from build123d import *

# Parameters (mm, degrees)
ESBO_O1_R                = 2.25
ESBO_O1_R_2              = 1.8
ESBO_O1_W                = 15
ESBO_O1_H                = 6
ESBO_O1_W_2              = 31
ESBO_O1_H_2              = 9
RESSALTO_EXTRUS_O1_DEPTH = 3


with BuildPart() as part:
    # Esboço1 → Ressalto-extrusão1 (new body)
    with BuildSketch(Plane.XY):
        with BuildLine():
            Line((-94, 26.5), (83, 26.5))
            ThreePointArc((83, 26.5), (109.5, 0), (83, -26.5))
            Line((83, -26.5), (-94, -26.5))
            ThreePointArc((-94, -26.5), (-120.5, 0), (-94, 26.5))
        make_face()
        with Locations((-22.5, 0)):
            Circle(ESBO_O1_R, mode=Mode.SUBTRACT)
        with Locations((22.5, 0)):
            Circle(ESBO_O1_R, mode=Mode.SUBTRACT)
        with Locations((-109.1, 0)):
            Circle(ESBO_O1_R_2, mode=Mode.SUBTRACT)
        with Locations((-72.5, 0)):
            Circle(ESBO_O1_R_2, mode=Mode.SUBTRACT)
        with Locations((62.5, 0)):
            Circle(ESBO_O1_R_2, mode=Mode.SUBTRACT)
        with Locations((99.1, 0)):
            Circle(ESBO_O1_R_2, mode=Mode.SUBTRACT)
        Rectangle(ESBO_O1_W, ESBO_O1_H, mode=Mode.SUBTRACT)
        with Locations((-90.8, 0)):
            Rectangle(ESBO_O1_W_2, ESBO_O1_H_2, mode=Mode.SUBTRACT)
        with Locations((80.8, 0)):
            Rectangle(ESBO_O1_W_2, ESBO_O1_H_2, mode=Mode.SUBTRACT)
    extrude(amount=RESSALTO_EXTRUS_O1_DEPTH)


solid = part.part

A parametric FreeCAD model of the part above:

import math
import FreeCAD as App
import Part
import Sketcher
Q = App.Units.Quantity


def add_polygon(sketch, points):
    """Adds a closed chain of lines whose ends are joined by coincident constraints."""
    first, n = sketch.GeometryCount, len(points)
    for a, b in zip(points, points[1:] + points[:1]):
        sketch.addGeometry(Part.LineSegment(App.Vector(*a, 0), App.Vector(*b, 0)), False)
    for i in range(n):
        sketch.addConstraint(Sketcher.Constraint("Coincident", first + i, 2, first + (i + 1) % n, 1))

doc = App.newDocument("Part")
params = doc.addObject("Spreadsheet::Sheet", "Params")
for row, (alias, value) in enumerate([
    ("sketch1_diameter", "3.6 mm"),
    ("sketch1_diameter2", "4.5 mm"),
    ("sketch1_radius", "26.5 mm"),
    ("sketch1_width", "177 mm"),
    ("sketch1_width2", "31 mm"),
    ("pad1_length", "3 mm"),
], start=1):
    params.set(f"A{row}", alias)
    params.set(f"B{row}", "=" + value)
    params.setAlias(f"B{row}", alias)

body = doc.addObject("PartDesign::Body", "Body")

sketch1 = body.newObject("Sketcher::SketchObject", "Sketch")
sketch1.AttachmentSupport = (doc.getObject("XY_Plane"), [""])
sketch1.MapMode = "FlatFace"
sketch1.addGeometry(Part.LineSegment(App.Vector(83, 26.5, 0), App.Vector(-94, 26.5, 0)), False)
sketch1.addGeometry(Part.ArcOfCircle(Part.Circle(App.Vector(-94, 0, 0), App.Vector(0, 0, 1), 26.5), math.radians(90), math.radians(270)), False)
sketch1.addGeometry(Part.LineSegment(App.Vector(-94, -26.5, 0), App.Vector(83, -26.5, 0)), False)
sketch1.addGeometry(Part.ArcOfCircle(Part.Circle(App.Vector(83, 0, 0), App.Vector(0, 0, 1), 26.5), math.radians(-90), math.radians(90)), False)
sketch1.addGeometry(Part.Circle(App.Vector(99.1, 0, 0), App.Vector(0, 0, 1), 1.8), False)
add_polygon(sketch1, [(65.3, -4.5), (65.3, 4.5), (96.3, 4.5), (96.3, -4.5)])
sketch1.addGeometry(Part.Circle(App.Vector(62.5, 0, 0), App.Vector(0, 0, 1), 1.8), False)
sketch1.addGeometry(Part.Circle(App.Vector(22.5, 0, 0), App.Vector(0, 0, 1), 2.2), False)
add_polygon(sketch1, [(-7.5, -3), (-7.5, 3), (7.5, 3), (7.5, -3)])
sketch1.addGeometry(Part.Circle(App.Vector(-22.5, 0, 0), App.Vector(0, 0, 1), 2.2), False)
sketch1.addGeometry(Part.Circle(App.Vector(-72.5, 0, 0), App.Vector(0, 0, 1), 1.8), False)
add_polygon(sketch1, [(-106.3, -4.5), (-106.3, 4.5), (-75.3, 4.5), (-75.3, -4.5)])
sketch1.addGeometry(Part.Circle(App.Vector(-109.1, 0, 0), App.Vector(0, 0, 1), 1.8), False)
sketch1.addConstraint(Sketcher.Constraint("Tangent", 0, 2, 1, 1))
sketch1.addConstraint(Sketcher.Constraint("Tangent", 1, 2, 2, 1))
sketch1.addConstraint(Sketcher.Constraint("Tangent", 2, 2, 3, 1))
sketch1.addConstraint(Sketcher.Constraint("Tangent", 3, 2, 0, 1))
sketch1.addConstraint(Sketcher.Constraint("Horizontal", 0))
sketch1.addConstraint(Sketcher.Constraint("Horizontal", 2))
sketch1.addConstraint(Sketcher.Constraint("Vertical", 5))
sketch1.addConstraint(Sketcher.Constraint("Horizontal", 6))
sketch1.addConstraint(Sketcher.Constraint("Vertical", 7))
sketch1.addConstraint(Sketcher.Constraint("Horizontal", 8))
sketch1.addConstraint(Sketcher.Constraint("Vertical", 11))
sketch1.addConstraint(Sketcher.Constraint("Horizontal", 12))
sketch1.addConstraint(Sketcher.Constraint("Vertical", 13))
sketch1.addConstraint(Sketcher.Constraint("Horizontal", 14))
sketch1.addConstraint(Sketcher.Constraint("Vertical", 17))
sketch1.addConstraint(Sketcher.Constraint("Horizontal", 18))
sketch1.addConstraint(Sketcher.Constraint("Vertical", 19))
sketch1.addConstraint(Sketcher.Constraint("Horizontal", 20))
sketch1.addConstraint(Sketcher.Constraint("Equal", 4, 9))
sketch1.addConstraint(Sketcher.Constraint("Equal", 10, 15))
sketch1.addConstraint(Sketcher.Constraint("Equal", 9, 16))
sketch1.addConstraint(Sketcher.Constraint("Equal", 16, 21))
sketch1.addConstraint(Sketcher.Constraint("Symmetric", 10, 3, 15, 3, -1, 1))
sketch1.addConstraint(Sketcher.Constraint("Symmetric", 11, 2, 13, 2, -1, 1))
sketch1.addConstraint(Sketcher.Constraint("PointOnObject", 1, 3, -1))
sketch1.addConstraint(Sketcher.Constraint("PointOnObject", 4, 3, -1))
sketch1.addConstraint(Sketcher.Constraint("PointOnObject", 9, 3, -1))
sketch1.addConstraint(Sketcher.Constraint("PointOnObject", 10, 3, -1))
sketch1.addConstraint(Sketcher.Constraint("PointOnObject", 16, 3, -1))
sketch1.addConstraint(Sketcher.Constraint("PointOnObject", 21, 3, -1))
sketch1.addConstraint(Sketcher.Constraint("Horizontal", 6, 2, 17, 2))
sketch1.addConstraint(Sketcher.Constraint("Horizontal", 8, 2, 19, 2))
sketch1.addConstraint(Sketcher.Constraint("Equal", 8, 18))
sketch1.addConstraint(Sketcher.Constraint("Diameter", 4, Q("3.6 mm")))
sketch1.addConstraint(Sketcher.Constraint("Diameter", 10, Q("4.5 mm")))
sketch1.addConstraint(Sketcher.Constraint("Radius", 1, Q("26.5 mm")))
sketch1.addConstraint(Sketcher.Constraint("DistanceX", 0, 2, 0, 1, Q("177 mm")))
sketch1.addConstraint(Sketcher.Constraint("DistanceX", 6, 1, 6, 2, Q("31 mm")))
sketch1.addConstraint(Sketcher.Constraint("DistanceX", 12, 1, 12, 2, Q("15 mm")))
sketch1.addConstraint(Sketcher.Constraint("DistanceY", 5, 1, 5, 2, Q("9 mm")))
sketch1.addConstraint(Sketcher.Constraint("DistanceY", 11, 1, 11, 2, Q("6 mm")))
sketch1.addConstraint(Sketcher.Constraint("DistanceX", 1, 3, -1, 1, Q("94 mm")))
sketch1.addConstraint(Sketcher.Constraint("DistanceX", 10, 3, 9, 3, Q("40 mm")))
sketch1.addConstraint(Sketcher.Constraint("DistanceX", 15, 3, 10, 3, Q("45 mm")))
sketch1.addConstraint(Sketcher.Constraint("DistanceX", 16, 3, 15, 3, Q("50 mm")))
sketch1.addConstraint(Sketcher.Constraint("DistanceY", 5, 2, 3, 2, Q("22 mm")))
sketch1.addConstraint(Sketcher.Constraint("DistanceX", -1, 1, 4, 3, Q("99.1 mm")))
sketch1.addConstraint(Sketcher.Constraint("DistanceX", 21, 3, -1, 1, Q("109.1 mm")))
sketch1.addConstraint(Sketcher.Constraint("DistanceX", -1, 1, 5, 2, Q("65.3 mm")))
sketch1.addConstraint(Sketcher.Constraint("DistanceX", 17, 2, -1, 1, Q("106.3 mm")))
sketch1.setExpression("Constraints[45]", "Params.sketch1_diameter")
sketch1.setExpression("Constraints[46]", "Params.sketch1_diameter2")
sketch1.setExpression("Constraints[47]", "Params.sketch1_radius")
sketch1.setExpression("Constraints[48]", "Params.sketch1_width")
sketch1.setExpression("Constraints[49]", "Params.sketch1_width2")
pad1 = body.newObject("PartDesign::Pad", "Pad")
pad1.Profile = sketch1
pad1.setExpression("Length", "Params.pad1_length")

doc.recompute()
